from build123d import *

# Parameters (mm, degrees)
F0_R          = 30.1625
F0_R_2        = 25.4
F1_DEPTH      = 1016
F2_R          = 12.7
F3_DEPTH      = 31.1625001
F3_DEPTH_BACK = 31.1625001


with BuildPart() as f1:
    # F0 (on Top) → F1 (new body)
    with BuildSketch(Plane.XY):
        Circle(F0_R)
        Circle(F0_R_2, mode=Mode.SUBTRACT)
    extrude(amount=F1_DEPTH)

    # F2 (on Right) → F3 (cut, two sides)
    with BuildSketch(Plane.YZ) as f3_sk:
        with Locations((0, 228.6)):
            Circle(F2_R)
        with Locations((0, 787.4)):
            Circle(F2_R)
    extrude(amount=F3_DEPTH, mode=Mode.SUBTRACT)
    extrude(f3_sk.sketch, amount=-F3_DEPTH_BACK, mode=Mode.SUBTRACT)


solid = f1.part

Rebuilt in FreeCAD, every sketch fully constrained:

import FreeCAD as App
import Part
import Sketcher
Q = App.Units.Quantity

doc = App.newDocument("Part")
body = doc.addObject("PartDesign::Body", "Body")

sketch1 = doc.addObject("Sketcher::SketchObject", "Sketch")
body.addObject(sketch1)
sketch1.AttachmentSupport = (doc.XY_Plane, [""])
sketch1.MapMode = "FlatFace"
sketch1.addGeometry(Part.Circle(App.Vector(0, 0, 0), App.Vector(0, 0, 1), 30), False)
sketch1.addGeometry(Part.Circle(App.Vector(0, 0, 0), App.Vector(0, 0, 1), 25), False)
sketch1.addConstraint(Sketcher.Constraint("Coincident", 0, 3, -1, 1))
sketch1.addConstraint(Sketcher.Constraint("Coincident", 1, 3, -1, 1))
sketch1.addConstraint(Sketcher.Constraint("Diameter", 1, Q("2 in")))
sketch1.addConstraint(Sketcher.Constraint("Diameter", 0, Q("2.375 in")))
pad1 = doc.addObject("PartDesign::Pad", "Pad")
body.addObject(pad1)
pad1.Profile = sketch1
pad1.Length = Q("40 in")

sketch2 = doc.addObject("Sketcher::SketchObject", "Sketch001")
body.addObject(sketch2)
sketch2.AttachmentSupport = (doc.YZ_Plane, [""])
sketch2.MapMode = "FlatFace"
sketch2.addGeometry(Part.Circle(App.Vector(0, 229, 0), App.Vector(0, 0, 1), 13), False)
sketch2.addGeometry(Part.Circle(App.Vector(0, 787, 0), App.Vector(0, 0, 1), 13), False)
sketch2.addConstraint(Sketcher.Constraint("Equal", 0, 1))
sketch2.addConstraint(Sketcher.Constraint("PointOnObject", 0, 3, -2))
sketch2.addConstraint(Sketcher.Constraint("PointOnObject", 1, 3, -2))
sketch2.addConstraint(Sketcher.Constraint("Diameter", 0, Q("1 in")))
sketch2.addConstraint(Sketcher.Constraint("DistanceY", -1, 1, 0, 3, Q("9 in")))
sketch2.addConstraint(Sketcher.Constraint("DistanceY", -1, 1, 1, 3, Q("31 in")))
pocket1 = doc.addObject("PartDesign::Pocket", "Pocket")
body.addObject(pocket1)
pocket1.Profile = sketch2
pocket1.Type = "ThroughAll"
pocket1.Midplane = True

doc.recompute()
